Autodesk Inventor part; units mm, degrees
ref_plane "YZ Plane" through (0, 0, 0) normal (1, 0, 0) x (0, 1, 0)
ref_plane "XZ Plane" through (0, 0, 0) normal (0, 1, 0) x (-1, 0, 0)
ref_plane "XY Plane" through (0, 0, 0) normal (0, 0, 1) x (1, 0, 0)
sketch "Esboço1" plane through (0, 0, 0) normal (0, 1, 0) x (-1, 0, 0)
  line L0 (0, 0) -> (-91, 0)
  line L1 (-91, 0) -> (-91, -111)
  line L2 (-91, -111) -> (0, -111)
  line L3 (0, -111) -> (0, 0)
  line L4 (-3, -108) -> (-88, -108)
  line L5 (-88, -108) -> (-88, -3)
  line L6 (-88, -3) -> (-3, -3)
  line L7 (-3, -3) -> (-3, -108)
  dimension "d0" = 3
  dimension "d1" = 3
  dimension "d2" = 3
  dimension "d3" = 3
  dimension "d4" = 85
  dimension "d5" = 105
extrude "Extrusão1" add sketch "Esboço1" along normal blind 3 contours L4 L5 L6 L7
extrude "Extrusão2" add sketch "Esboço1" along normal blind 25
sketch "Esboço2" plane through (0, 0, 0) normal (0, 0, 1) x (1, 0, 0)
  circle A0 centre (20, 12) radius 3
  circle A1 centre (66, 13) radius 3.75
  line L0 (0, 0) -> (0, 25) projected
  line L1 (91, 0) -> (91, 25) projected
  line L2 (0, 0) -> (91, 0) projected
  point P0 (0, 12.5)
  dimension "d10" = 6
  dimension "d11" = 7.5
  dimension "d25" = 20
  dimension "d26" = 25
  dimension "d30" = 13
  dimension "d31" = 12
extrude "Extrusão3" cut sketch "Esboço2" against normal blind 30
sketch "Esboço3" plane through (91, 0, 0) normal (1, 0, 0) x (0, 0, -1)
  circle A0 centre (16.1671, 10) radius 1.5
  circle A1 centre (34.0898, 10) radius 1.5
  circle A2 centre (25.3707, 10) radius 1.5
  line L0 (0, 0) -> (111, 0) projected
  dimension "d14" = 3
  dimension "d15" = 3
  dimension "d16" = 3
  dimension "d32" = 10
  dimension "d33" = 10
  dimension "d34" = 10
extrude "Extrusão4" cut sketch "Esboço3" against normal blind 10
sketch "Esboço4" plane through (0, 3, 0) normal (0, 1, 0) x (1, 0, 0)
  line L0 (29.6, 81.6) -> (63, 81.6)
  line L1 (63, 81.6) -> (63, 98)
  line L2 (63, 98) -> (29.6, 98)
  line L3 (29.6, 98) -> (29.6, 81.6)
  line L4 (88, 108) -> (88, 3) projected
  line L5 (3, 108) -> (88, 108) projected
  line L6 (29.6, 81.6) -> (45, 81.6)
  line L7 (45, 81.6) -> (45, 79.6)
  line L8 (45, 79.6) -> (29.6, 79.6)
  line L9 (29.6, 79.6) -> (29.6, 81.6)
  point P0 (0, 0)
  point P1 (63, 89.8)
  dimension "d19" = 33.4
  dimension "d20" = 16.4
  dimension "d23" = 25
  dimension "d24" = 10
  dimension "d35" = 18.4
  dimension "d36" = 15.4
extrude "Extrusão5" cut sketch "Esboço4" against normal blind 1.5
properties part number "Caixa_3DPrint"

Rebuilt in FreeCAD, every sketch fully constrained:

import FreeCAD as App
import Part
import Sketcher

doc = App.newDocument("Part")
body = doc.addObject("PartDesign::Body", "Body")

# Sketch on XZ plane
sketch1 = body.newObject("Sketcher::SketchObject", "Sketch")
sketch1.AttachmentSupport = (doc.getObject("XZ_Plane"), [""])
sketch1.MapMode = "FlatFace"
sketch1.addGeometry([
    Part.LineSegment(App.Vector(88, -108, 0), App.Vector(3, -108, 0)),
    Part.LineSegment(App.Vector(3, -108, 0), App.Vector(3, -3, 0)),
    Part.LineSegment(App.Vector(3, -3, 0), App.Vector(88, -3, 0)),
    Part.LineSegment(App.Vector(88, -3, 0), App.Vector(88, -108, 0)),
], False)
sketch1.addConstraint([
    Sketcher.Constraint("Coincident", 0, 2, 1, 1),
    Sketcher.Constraint("Coincident", 1, 2, 2, 1),
    Sketcher.Constraint("Coincident", 2, 2, 3, 1),
    Sketcher.Constraint("Coincident", 3, 2, 0, 1),
    Sketcher.Constraint("Horizontal", 0),
    Sketcher.Constraint("Vertical", 1),
    Sketcher.Constraint("Horizontal", 2),
    Sketcher.Constraint("Vertical", 3),
    Sketcher.Constraint("DistanceX", 0, 2, 0, 1, 85.0),
    Sketcher.Constraint("DistanceY", 1, 1, 1, 2, 105.0),
    Sketcher.Constraint("DistanceX", -1, 1, 0, 2, 3.0),
    Sketcher.Constraint("DistanceY", 1, 2, -1, 1, 3.0),
])
pad1 = body.newObject("PartDesign::Pad", "Pad")
pad1.Profile = sketch1
pad1.Length = 3
pad1.Reversed = True

# Sketch on XZ plane
sketch2 = body.newObject("Sketcher::SketchObject", "Sketch001")
sketch2.AttachmentSupport = (doc.getObject("XZ_Plane"), [""])
sketch2.MapMode = "FlatFace"
sketch2.addGeometry([
    Part.LineSegment(App.Vector(0, -111, 0), App.Vector(0, 0, 0)),  # 0
    Part.LineSegment(App.Vector(0, 0, 0), App.Vector(91, 0, 0)),  # 1
    Part.LineSegment(App.Vector(91, 0, 0), App.Vector(91, -111, 0)),  # 2
    Part.LineSegment(App.Vector(91, -111, 0), App.Vector(0, -111, 0)),  # 3
    Part.LineSegment(App.Vector(3, -3, 0), App.Vector(3, -108, 0)),  # 4
    Part.LineSegment(App.Vector(3, -108, 0), App.Vector(88, -108, 0)),  # 5
    Part.LineSegment(App.Vector(88, -108, 0), App.Vector(88, -3, 0)),  # 6
    Part.LineSegment(App.Vector(88, -3, 0), App.Vector(3, -3, 0)),  # 7
], False)
sketch2.addConstraint([
    Sketcher.Constraint("Coincident", 0, 2, 1, 1),
    Sketcher.Constraint("Coincident", 1, 2, 2, 1),
    Sketcher.Constraint("Coincident", 2, 2, 3, 1),
    Sketcher.Constraint("Coincident", 3, 2, 0, 1),
    Sketcher.Constraint("Coincident", 4, 2, 5, 1),
    Sketcher.Constraint("Coincident", 5, 2, 6, 1),
    Sketcher.Constraint("Coincident", 6, 2, 7, 1),
    Sketcher.Constraint("Coincident", 7, 2, 4, 1),
    Sketcher.Constraint("Vertical", 0),
    Sketcher.Constraint("Horizontal", 1),
    Sketcher.Constraint("Vertical", 2),
    Sketcher.Constraint("Horizontal", 3),
    Sketcher.Constraint("Vertical", 4),
    Sketcher.Constraint("Horizontal", 5),
    Sketcher.Constraint("Vertical", 6),
    Sketcher.Constraint("Horizontal", 7),
    Sketcher.Constraint("Coincident", 0, 2, -1, 1),
    Sketcher.Constraint("DistanceX", 5, 1, 5, 2, 85.0),
    Sketcher.Constraint("DistanceY", 4, 2, 4, 1, 105.0),
    Sketcher.Constraint("DistanceX", -1, 1, 4, 2, 3.0),
    Sketcher.Constraint("DistanceY", 6, 2, -1, 1, 3.0),
    Sketcher.Constraint("DistanceY", 3, 2, 4, 2, 3.0),
    Sketcher.Constraint("DistanceX", 5, 2, 2, 2, 3.0),
])
pad2 = body.newObject("PartDesign::Pad", "Pad001")
pad2.Profile = sketch2
pad2.Length = 25
pad2.Reversed = True

# Sketch on XY plane
sketch3 = body.newObject("Sketcher::SketchObject", "Sketch002")
sketch3.AttachmentSupport = (doc.getObject("XY_Plane"), [""])
sketch3.MapMode = "FlatFace"
sketch3.addGeometry([
    Part.Circle(App.Vector(20, 12, 0), App.Vector(0, 0, 1), 3),
    Part.Circle(App.Vector(66, 13, 0), App.Vector(0, 0, 1), 3.8),
], False)
sketch3.addConstraint([
    Sketcher.Constraint("Diameter", 0, 6.0),
    Sketcher.Constraint("Diameter", 1, 7.5),
    Sketcher.Constraint("DistanceX", -1, 1, 0, 3, 20.0),
    Sketcher.Constraint("DistanceY", -1, 1, 0, 3, 12.0),
    Sketcher.Constraint("DistanceY", -1, 1, 1, 3, 13.0),
    Sketcher.Constraint("DistanceX", -1, 1, 1, 3, 66.0),
])
pocket1 = body.newObject("PartDesign::Pocket", "Pocket")
pocket1.Profile = sketch3
pocket1.Length = 30

# Sketch on YZ plane
sketch4 = body.newObject("Sketcher::SketchObject", "Sketch003")
sketch4.AttachmentSupport = (doc.getObject("YZ_Plane"), [""])
sketch4.MapMode = "FlatFace"
sketch4.AttachmentOffset = App.Placement(App.Vector(0, 0, 91), App.Rotation())
sketch4.addGeometry([
    Part.Circle(App.Vector(10, -16.2, 0), App.Vector(0, 0, 1), 1.5),
    Part.Circle(App.Vector(10, -34.1, 0), App.Vector(0, 0, 1), 1.5),
    Part.Circle(App.Vector(10, -25.4, 0), App.Vector(0, 0, 1), 1.5),
], False)
sketch4.addConstraint([
    Sketcher.Constraint("Equal", 0, 1),
    Sketcher.Constraint("Equal", 1, 2),
    Sketcher.Constraint("Vertical", 0, 3, 1, 3),
    Sketcher.Constraint("Vertical", 1, 3, 2, 3),
    Sketcher.Constraint("Diameter", 0, 3.0),
    Sketcher.Constraint("DistanceX", -1, 1, 0, 3, 10.0),
    Sketcher.Constraint("DistanceY", 0, 3, -1, 1, 16.167),
    Sketcher.Constraint("DistanceY", 1, 3, 2, 3, 8.719),
    Sketcher.Constraint("DistanceY", 1, 3, -1, 1, 34.0898),
])
pocket2 = body.newObject("PartDesign::Pocket", "Pocket001")
pocket2.Profile = sketch4
pocket2.Length = 10

# Sketch on XZ plane
sketch5 = body.newObject("Sketcher::SketchObject", "Sketch004")
sketch5.AttachmentSupport = (doc.getObject("XZ_Plane"), [""])
sketch5.MapMode = "FlatFace"
sketch5.AttachmentOffset = App.Placement(App.Vector(0, 0, -3), App.Rotation())
sketch5.addGeometry([
    Part.LineSegment(App.Vector(29.6, -98, 0), App.Vector(29.6, -79.6, 0)),  # 0
    Part.LineSegment(App.Vector(29.6, -79.6, 0), App.Vector(45, -79.6, 0)),  # 1
    Part.LineSegment(App.Vector(45, -79.6, 0), App.Vector(45, -81.6, 0)),  # 2
    Part.LineSegment(App.Vector(45, -81.6, 0), App.Vector(63, -81.6, 0)),  # 3
    Part.LineSegment(App.Vector(63, -81.6, 0), App.Vector(63, -98, 0)),  # 4
    Part.LineSegment(App.Vector(63, -98, 0), App.Vector(29.6, -98, 0)),  # 5
], False)
sketch5.addConstraint([
    Sketcher.Constraint("Coincident", 0, 2, 1, 1),
    Sketcher.Constraint("Coincident", 1, 2, 2, 1),
    Sketcher.Constraint("Coincident", 2, 2, 3, 1),
    Sketcher.Constraint("Coincident", 3, 2, 4, 1),
    Sketcher.Constraint("Coincident", 4, 2, 5, 1),
    Sketcher.Constraint("Coincident", 5, 2, 0, 1),
    Sketcher.Constraint("Vertical", 0),
    Sketcher.Constraint("Horizontal", 1),
    Sketcher.Constraint("Vertical", 2),
    Sketcher.Constraint("Horizontal", 3),
    Sketcher.Constraint("Vertical", 4),
    Sketcher.Constraint("Horizontal", 5),
    Sketcher.Constraint("DistanceX", 1, 1, 1, 2, 15.4),
    Sketcher.Constraint("DistanceX", 5, 2, 5, 1, 33.4),
    Sketcher.Constraint("DistanceY", 0, 1, 0, 2, 18.4),
    Sketcher.Constraint("DistanceY", 4, 2, 4, 1, 16.4),
    Sketcher.Constraint("DistanceX", -1, 1, 1, 2, 45.0),
    Sketcher.Constraint("DistanceY", 4, 2, -1, 1, 98.0),
])
pocket3 = body.newObject("PartDesign::Pocket", "Pocket002")
pocket3.Profile = sketch5
pocket3.Length = 1.5
pocket3.Reversed = True

doc.recompute()
